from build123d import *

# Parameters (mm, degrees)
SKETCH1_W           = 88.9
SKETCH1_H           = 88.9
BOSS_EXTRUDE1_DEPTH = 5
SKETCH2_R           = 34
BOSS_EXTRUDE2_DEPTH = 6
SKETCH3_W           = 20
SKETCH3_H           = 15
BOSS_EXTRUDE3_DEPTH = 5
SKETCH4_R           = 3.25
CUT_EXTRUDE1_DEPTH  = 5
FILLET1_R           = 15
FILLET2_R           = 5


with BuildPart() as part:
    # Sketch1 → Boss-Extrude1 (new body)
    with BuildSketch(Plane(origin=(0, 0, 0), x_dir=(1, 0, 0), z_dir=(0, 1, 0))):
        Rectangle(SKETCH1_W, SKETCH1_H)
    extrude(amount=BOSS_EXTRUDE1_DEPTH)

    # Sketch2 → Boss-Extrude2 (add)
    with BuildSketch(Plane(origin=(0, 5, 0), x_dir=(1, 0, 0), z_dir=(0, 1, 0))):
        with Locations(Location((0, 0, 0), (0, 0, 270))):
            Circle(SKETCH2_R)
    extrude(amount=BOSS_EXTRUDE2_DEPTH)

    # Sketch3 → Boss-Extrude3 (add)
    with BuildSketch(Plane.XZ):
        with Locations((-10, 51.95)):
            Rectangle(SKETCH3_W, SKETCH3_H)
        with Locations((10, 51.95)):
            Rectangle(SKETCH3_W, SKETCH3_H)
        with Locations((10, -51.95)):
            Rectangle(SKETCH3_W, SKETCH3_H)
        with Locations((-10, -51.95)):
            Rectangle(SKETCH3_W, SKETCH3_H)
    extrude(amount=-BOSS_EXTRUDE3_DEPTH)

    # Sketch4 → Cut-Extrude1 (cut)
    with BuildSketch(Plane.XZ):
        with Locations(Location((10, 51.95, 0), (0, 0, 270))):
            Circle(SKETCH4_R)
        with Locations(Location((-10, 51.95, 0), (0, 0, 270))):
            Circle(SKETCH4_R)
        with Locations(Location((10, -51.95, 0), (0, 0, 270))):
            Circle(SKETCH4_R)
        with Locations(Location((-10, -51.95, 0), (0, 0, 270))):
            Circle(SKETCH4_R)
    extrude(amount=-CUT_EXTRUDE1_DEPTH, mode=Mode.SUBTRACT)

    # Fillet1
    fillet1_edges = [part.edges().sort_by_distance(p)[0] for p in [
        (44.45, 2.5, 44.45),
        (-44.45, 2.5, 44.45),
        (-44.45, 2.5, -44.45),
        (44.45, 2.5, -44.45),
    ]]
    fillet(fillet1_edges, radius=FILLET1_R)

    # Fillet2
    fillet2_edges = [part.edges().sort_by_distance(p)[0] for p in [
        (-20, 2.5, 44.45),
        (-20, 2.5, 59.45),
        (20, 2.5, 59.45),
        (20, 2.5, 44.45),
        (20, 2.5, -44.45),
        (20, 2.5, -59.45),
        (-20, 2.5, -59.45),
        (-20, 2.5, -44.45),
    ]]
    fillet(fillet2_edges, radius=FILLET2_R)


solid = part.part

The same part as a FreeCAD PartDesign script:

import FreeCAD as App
import Part
import Sketcher
from FreeCAD import Vector


def edges_at(feature, points):
    """Names of the edges that pass closest to the given points."""
    edges = feature.Shape.Edges
    near = lambda p: min(range(len(edges)), key=lambda i: edges[i].distToShape(Part.Vertex(*p))[0])
    return sorted({f"Edge{near(p) + 1}" for p in points})

doc = App.newDocument("Part")
body = doc.addObject("PartDesign::Body", "Body")

# Sketch on XZ plane
sketch1 = body.newObject("Sketcher::SketchObject", "Sketch")
sketch1.AttachmentSupport = (doc.getObject("XZ_Plane"), [""])
sketch1.MapMode = "FlatFace"
sketch1.addGeometry([
    Part.LineSegment(Vector(-44.45, -44.45, 0), Vector(-44.45, 44.45, 0)),
    Part.LineSegment(Vector(-44.45, 44.45, 0), Vector(44.45, 44.45, 0)),
    Part.LineSegment(Vector(44.45, 44.45, 0), Vector(44.45, -44.45, 0)),
    Part.LineSegment(Vector(44.45, -44.45, 0), Vector(-44.45, -44.45, 0)),
], False)
sketch1.addConstraint([
    Sketcher.Constraint("Coincident", 0, 2, 1, 1),
    Sketcher.Constraint("Coincident", 1, 2, 2, 1),
    Sketcher.Constraint("Coincident", 2, 2, 3, 1),
    Sketcher.Constraint("Coincident", 3, 2, 0, 1),
    Sketcher.Constraint("Vertical", 0),
    Sketcher.Constraint("Horizontal", 1),
    Sketcher.Constraint("Vertical", 2),
    Sketcher.Constraint("Horizontal", 3),
    Sketcher.Constraint("Symmetric", 0, 2, 2, 2, -1, 1),
    Sketcher.Constraint("Equal", 3, 0),
    Sketcher.Constraint("DistanceX", 1, 1, 1, 2, 88.9),
])
pad1 = body.newObject("PartDesign::Pad", "Pad")
pad1.Profile = sketch1
pad1.Length = 5
pad1.Reversed = True

# Sketch on XZ plane
sketch2 = body.newObject("Sketcher::SketchObject", "Sketch001")
sketch2.AttachmentSupport = (doc.getObject("XZ_Plane"), [""])
sketch2.MapMode = "FlatFace"
sketch2.AttachmentOffset = App.Placement(Vector(0, 0, -5), App.Rotation())
sketch2.addGeometry(Part.Circle(Vector(0, 0, 0), Vector(0, 0, 1), 34), False)
sketch2.addConstraint([
    Sketcher.Constraint("Coincident", 0, 3, -1, 1),
    Sketcher.Constraint("Diameter", 0, 68.0),
])
pad2 = body.newObject("PartDesign::Pad", "Pad001")
pad2.Profile = sketch2
pad2.Length = 6
pad2.Reversed = True

# Sketch on XZ plane
sketch3 = body.newObject("Sketcher::SketchObject", "Sketch002")
sketch3.AttachmentSupport = (doc.getObject("XZ_Plane"), [""])
sketch3.MapMode = "FlatFace"
sketch3.addGeometry([
    Part.LineSegment(Vector(-20, 59.45, 0), Vector(-20, 44.45, 0)),  # 0
    Part.LineSegment(Vector(-20, 44.45, 0), Vector(20, 44.45, 0)),  # 1
    Part.LineSegment(Vector(20, 44.45, 0), Vector(20, 59.45, 0)),  # 2
    Part.LineSegment(Vector(20, 59.45, 0), Vector(-20, 59.45, 0)),  # 3
    Part.LineSegment(Vector(20, -59.45, 0), Vector(20, -44.45, 0)),  # 4
    Part.LineSegment(Vector(20, -44.45, 0), Vector(-20, -44.45, 0)),  # 5
    Part.LineSegment(Vector(-20, -44.45, 0), Vector(-20, -59.45, 0)),  # 6
    Part.LineSegment(Vector(-20, -59.45, 0), Vector(20, -59.45, 0)),  # 7
], False)
sketch3.addConstraint([
    Sketcher.Constraint("Coincident", 0, 2, 1, 1),
    Sketcher.Constraint("Coincident", 1, 2, 2, 1),
    Sketcher.Constraint("Coincident", 2, 2, 3, 1),
    Sketcher.Constraint("Coincident", 3, 2, 0, 1),
    Sketcher.Constraint("Coincident", 4, 2, 5, 1),
    Sketcher.Constraint("Coincident", 5, 2, 6, 1),
    Sketcher.Constraint("Coincident", 6, 2, 7, 1),
    Sketcher.Constraint("Coincident", 7, 2, 4, 1),
    Sketcher.Constraint("Vertical", 0),
    Sketcher.Constraint("Horizontal", 1),
    Sketcher.Constraint("Vertical", 2),
    Sketcher.Constraint("Horizontal", 3),
    Sketcher.Constraint("Vertical", 4),
    Sketcher.Constraint("Horizontal", 5),
    Sketcher.Constraint("Vertical", 6),
    Sketcher.Constraint("Horizontal", 7),
    Sketcher.Constraint("Symmetric", 0, 2, 4, 2, -1, 1),
    Sketcher.Constraint("Symmetric", 2, 2, 6, 2, -1, 1),
    Sketcher.Constraint("Vertical", 2, 2, 4, 2),
    Sketcher.Constraint("DistanceX", 1, 1, 1, 2, 40.0),
    Sketcher.Constraint("DistanceY", 0, 2, 0, 1, 15.0),
    Sketcher.Constraint("DistanceY", 4, 2, 1, 2, 88.9),
])
pad3 = body.newObject("PartDesign::Pad", "Pad002")
pad3.Profile = sketch3
pad3.Length = 5
pad3.Reversed = True

# Sketch on XZ plane
sketch4 = body.newObject("Sketcher::SketchObject", "Sketch003")
sketch4.AttachmentSupport = (doc.getObject("XZ_Plane"), [""])
sketch4.MapMode = "FlatFace"
sketch4.addGeometry([
    Part.Circle(Vector(10, 51.95, 0), Vector(0, 0, 1), 3.25),
    Part.Circle(Vector(-10, 51.95, 0), Vector(0, 0, 1), 3.25),
    Part.Circle(Vector(10, -51.95, 0), Vector(0, 0, 1), 3.25),
    Part.Circle(Vector(-10, -51.95, 0), Vector(0, 0, 1), 3.25),
], False)
sketch4.addConstraint([
    Sketcher.Constraint("Equal", 0, 1),
    Sketcher.Constraint("Equal", 1, 2),
    Sketcher.Constraint("Equal", 2, 3),
    Sketcher.Constraint("Symmetric", 1, 3, 2, 3, -1, 1),
    Sketcher.Constraint("Symmetric", 0, 3, 3, 3, -1, 1),
    Sketcher.Constraint("Symmetric", 0, 3, 1, 3, -2),
    Sketcher.Constraint("Diameter", 0, 6.5),
    Sketcher.Constraint("DistanceX", -1, 1, 0, 3, 10.0),
    Sketcher.Constraint("DistanceY", 2, 3, 0, 3, 103.9),
])
pocket1 = body.newObject("PartDesign::Pocket", "Pocket")
pocket1.Profile = sketch4
pocket1.Length = 5
doc.recompute()

fillet = body.newObject("PartDesign::Fillet", "Fillet")
fillet.Base = (pocket1, edges_at(pocket1, [
    (44.45, 2.5, 44.45),
    (-44.45, 2.5, 44.45),
    (-44.45, 2.5, -44.45),
    (44.45, 2.5, -44.45),
]))
fillet.Radius = 15
doc.recompute()

fillet2 = body.newObject("PartDesign::Fillet", "Fillet001")
fillet2.Base = (fillet, edges_at(fillet, [
    (-20, 2.5, 44.45),
    (-20, 2.5, 59.45),
    (20, 2.5, 59.45),
    (20, 2.5, 44.45),
    (20, 2.5, -44.45),
    (20, 2.5, -59.45),
    (-20, 2.5, -59.45),
    (-20, 2.5, -44.45),
]))
fillet2.Radius = 5

doc.recompute()
